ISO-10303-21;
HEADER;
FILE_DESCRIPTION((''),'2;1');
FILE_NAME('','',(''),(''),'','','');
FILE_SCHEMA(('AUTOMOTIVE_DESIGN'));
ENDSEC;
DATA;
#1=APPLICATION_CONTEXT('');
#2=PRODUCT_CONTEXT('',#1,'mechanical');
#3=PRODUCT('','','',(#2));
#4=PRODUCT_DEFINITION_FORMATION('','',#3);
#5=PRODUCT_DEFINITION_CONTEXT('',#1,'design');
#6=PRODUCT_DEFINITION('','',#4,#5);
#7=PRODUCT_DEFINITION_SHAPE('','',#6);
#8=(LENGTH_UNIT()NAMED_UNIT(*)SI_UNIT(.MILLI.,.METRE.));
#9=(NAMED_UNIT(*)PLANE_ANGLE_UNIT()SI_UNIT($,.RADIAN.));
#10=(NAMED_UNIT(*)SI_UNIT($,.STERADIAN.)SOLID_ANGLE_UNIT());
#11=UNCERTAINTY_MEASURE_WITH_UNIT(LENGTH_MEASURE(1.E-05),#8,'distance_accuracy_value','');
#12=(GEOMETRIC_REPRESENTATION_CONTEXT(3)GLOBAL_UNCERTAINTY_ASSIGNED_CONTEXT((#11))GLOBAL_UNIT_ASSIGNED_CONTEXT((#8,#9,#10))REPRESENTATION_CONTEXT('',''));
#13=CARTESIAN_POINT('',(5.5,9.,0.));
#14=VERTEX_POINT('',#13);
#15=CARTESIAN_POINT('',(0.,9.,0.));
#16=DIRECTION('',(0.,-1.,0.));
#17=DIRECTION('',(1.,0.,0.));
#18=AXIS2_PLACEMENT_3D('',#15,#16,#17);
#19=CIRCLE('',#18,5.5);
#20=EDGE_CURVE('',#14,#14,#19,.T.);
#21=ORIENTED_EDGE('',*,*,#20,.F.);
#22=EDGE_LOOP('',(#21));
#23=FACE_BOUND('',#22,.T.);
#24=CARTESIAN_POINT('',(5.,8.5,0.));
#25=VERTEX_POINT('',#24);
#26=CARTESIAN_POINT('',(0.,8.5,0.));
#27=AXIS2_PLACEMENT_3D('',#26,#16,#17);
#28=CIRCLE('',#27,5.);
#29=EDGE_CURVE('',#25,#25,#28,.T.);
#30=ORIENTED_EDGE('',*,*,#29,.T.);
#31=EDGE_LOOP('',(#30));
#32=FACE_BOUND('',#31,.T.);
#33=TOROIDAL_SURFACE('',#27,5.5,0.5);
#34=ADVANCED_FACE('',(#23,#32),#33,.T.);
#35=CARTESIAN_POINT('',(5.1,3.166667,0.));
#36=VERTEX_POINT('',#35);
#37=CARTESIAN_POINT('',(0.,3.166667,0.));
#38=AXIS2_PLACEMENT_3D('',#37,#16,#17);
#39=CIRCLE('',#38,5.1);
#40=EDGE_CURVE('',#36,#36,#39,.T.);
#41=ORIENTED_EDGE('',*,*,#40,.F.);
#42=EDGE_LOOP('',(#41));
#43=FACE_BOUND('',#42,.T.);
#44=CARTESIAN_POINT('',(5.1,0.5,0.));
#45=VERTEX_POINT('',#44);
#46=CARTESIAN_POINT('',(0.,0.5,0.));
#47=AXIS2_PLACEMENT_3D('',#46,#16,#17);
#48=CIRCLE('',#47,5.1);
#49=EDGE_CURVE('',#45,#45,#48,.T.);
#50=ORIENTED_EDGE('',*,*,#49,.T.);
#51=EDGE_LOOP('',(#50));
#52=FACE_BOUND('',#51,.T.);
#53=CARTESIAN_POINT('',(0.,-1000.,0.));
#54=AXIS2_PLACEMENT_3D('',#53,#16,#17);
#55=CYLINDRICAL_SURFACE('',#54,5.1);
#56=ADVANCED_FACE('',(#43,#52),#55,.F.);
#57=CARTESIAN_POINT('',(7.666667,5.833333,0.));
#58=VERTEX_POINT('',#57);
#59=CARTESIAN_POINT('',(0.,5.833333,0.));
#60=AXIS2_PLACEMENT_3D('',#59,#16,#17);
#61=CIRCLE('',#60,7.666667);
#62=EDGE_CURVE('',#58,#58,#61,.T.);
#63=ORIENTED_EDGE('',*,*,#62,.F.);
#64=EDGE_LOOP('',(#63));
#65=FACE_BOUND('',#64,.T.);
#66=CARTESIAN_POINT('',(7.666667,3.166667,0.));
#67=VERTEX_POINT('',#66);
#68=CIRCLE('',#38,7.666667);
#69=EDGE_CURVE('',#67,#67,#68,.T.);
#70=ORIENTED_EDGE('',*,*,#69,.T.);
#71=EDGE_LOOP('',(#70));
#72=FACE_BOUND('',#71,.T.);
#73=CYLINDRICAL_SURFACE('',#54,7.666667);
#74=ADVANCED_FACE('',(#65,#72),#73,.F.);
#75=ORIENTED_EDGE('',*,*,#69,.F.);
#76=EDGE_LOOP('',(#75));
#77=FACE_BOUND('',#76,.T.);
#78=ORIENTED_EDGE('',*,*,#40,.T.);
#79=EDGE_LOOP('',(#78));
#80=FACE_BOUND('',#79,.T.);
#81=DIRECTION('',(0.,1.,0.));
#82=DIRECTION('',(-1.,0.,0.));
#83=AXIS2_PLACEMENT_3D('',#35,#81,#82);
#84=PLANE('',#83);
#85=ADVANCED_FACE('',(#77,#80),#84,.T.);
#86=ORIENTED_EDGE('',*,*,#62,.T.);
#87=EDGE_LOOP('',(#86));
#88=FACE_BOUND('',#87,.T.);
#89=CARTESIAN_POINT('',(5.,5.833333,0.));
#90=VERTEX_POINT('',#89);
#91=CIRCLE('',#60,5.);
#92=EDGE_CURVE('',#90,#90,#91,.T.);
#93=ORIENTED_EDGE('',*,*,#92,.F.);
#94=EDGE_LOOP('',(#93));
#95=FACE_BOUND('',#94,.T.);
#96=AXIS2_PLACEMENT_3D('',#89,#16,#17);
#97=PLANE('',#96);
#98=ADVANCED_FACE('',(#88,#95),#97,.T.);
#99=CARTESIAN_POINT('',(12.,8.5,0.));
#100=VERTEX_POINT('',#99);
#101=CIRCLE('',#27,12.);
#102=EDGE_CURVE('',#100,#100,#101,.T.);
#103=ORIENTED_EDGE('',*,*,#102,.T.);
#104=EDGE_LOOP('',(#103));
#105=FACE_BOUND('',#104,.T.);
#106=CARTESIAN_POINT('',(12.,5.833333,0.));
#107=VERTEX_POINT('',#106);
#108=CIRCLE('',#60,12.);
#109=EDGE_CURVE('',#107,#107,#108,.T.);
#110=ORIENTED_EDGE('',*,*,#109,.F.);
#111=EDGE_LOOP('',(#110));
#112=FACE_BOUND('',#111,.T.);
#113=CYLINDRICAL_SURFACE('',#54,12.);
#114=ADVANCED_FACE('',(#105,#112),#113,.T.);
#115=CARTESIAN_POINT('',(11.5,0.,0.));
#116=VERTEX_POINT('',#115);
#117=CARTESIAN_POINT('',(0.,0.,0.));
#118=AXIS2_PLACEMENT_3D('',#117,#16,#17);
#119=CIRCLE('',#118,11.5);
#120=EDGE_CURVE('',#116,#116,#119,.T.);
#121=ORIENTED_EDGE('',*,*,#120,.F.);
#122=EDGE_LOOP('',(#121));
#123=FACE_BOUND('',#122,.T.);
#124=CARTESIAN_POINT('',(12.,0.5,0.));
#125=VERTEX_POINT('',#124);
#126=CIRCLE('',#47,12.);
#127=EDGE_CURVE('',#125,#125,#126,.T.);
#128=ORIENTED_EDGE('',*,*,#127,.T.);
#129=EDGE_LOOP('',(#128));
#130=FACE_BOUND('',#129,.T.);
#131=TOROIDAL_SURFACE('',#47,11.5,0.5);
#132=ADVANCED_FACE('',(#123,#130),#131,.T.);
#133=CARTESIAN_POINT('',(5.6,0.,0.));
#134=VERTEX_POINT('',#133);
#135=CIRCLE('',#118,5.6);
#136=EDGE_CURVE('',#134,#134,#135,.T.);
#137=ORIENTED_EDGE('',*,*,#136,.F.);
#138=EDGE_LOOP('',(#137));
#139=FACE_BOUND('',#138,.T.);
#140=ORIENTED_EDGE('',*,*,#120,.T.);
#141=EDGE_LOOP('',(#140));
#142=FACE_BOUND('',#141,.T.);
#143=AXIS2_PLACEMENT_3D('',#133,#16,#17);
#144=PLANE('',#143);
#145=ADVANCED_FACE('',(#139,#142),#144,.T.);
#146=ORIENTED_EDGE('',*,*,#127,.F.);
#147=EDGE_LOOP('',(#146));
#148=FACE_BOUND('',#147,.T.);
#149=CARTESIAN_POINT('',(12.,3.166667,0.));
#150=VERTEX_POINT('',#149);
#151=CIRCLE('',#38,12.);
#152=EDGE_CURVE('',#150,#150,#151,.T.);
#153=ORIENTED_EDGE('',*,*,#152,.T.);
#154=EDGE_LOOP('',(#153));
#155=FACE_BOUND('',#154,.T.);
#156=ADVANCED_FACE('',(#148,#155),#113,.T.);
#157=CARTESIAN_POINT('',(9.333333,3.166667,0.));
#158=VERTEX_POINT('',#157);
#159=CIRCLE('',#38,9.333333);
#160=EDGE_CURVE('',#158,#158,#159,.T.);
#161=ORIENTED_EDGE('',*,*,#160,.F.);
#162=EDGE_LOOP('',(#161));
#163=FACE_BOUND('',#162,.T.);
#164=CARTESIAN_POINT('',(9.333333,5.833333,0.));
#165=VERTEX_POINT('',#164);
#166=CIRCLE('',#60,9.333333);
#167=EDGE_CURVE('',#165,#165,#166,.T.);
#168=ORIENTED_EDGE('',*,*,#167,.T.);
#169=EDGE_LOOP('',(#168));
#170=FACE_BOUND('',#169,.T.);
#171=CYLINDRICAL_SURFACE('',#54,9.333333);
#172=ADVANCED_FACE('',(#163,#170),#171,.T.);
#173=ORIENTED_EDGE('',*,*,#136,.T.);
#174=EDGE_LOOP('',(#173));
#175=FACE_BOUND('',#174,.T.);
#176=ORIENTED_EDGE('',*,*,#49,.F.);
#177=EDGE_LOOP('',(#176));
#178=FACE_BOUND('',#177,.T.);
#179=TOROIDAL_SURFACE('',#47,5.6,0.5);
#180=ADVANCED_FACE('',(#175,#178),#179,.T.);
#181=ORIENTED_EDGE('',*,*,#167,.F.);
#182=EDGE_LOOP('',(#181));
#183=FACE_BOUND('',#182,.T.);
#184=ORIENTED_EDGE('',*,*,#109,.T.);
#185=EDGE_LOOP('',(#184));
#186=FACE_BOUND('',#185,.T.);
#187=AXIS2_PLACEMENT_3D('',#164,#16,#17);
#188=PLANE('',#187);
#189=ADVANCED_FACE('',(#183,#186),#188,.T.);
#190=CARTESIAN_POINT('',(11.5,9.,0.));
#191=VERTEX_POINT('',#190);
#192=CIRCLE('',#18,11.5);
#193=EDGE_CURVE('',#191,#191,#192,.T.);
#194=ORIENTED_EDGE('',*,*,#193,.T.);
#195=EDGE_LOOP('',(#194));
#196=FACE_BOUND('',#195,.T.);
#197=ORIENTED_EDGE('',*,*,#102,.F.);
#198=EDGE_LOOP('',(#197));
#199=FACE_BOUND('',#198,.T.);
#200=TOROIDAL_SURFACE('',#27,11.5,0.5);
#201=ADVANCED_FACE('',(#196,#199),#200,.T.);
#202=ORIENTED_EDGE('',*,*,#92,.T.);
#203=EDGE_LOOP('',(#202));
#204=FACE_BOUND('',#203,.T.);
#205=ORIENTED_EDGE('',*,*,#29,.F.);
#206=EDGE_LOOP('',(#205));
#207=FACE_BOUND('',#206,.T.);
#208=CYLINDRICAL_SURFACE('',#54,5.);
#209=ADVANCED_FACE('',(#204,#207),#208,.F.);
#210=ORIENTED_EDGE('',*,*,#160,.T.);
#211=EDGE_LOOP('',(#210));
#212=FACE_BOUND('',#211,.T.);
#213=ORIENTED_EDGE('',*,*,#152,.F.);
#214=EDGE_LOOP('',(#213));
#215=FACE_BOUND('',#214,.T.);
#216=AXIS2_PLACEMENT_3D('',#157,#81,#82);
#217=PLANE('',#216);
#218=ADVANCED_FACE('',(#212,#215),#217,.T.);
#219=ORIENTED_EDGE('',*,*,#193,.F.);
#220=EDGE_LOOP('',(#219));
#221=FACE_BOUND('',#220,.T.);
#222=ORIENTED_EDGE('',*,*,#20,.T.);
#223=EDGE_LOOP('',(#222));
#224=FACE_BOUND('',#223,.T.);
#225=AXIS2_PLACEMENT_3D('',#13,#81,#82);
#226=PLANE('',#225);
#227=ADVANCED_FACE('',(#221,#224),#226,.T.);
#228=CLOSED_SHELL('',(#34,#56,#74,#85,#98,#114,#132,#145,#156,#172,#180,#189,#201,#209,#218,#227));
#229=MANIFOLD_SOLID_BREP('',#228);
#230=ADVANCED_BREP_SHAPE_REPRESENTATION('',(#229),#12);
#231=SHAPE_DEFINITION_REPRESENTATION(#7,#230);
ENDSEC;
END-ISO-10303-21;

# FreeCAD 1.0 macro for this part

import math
import FreeCAD as App
import Part
import Sketcher
from FreeCAD import Vector
Q = App.Units.Quantity

doc = App.newDocument("Part")
body = doc.addObject("PartDesign::Body", "Body")

sketch1 = body.newObject("Sketcher::SketchObject", "Sketch")
sketch1.AttachmentSupport = (doc.getObject("XY_Plane"), [""])
sketch1.MapMode = "FlatFace"
sketch1.addGeometry(Part.LineSegment(Vector(7.666667, 3.166667, 0), Vector(5.1, 3.166667, 0)), False)
sketch1.addGeometry(Part.LineSegment(Vector(5.1, 3.166667, 0), Vector(5.1, 0.5, 0)), False)
sketch1.addGeometry(Part.ArcOfCircle(Part.Circle(Vector(5.6, 0.5, 0), Vector(0, 0, 1), 0.5), math.radians(180), math.radians(270)), False)
sketch1.addGeometry(Part.LineSegment(Vector(5.6, 0, 0), Vector(11.5, 0, 0)), False)
sketch1.addGeometry(Part.ArcOfCircle(Part.Circle(Vector(11.5, 0.5, 0), Vector(0, 0, 1), 0.5), math.radians(-90), math.radians(0)), False)
sketch1.addGeometry(Part.LineSegment(Vector(12, 0.5, 0), Vector(12, 3.166667, 0)), False)
sketch1.addGeometry(Part.LineSegment(Vector(12, 3.166667, 0), Vector(9.333333, 3.166667, 0)), False)
sketch1.addGeometry(Part.LineSegment(Vector(9.333333, 3.166667, 0), Vector(9.333333, 5.833333, 0)), False)
sketch1.addGeometry(Part.LineSegment(Vector(9.333333, 5.833333, 0), Vector(12, 5.833333, 0)), False)
sketch1.addGeometry(Part.LineSegment(Vector(12, 5.833333, 0), Vector(12, 8.5, 0)), False)
sketch1.addGeometry(Part.ArcOfCircle(Part.Circle(Vector(11.5, 8.5, 0), Vector(0, 0, 1), 0.5), math.radians(0), math.radians(90)), False)
sketch1.addGeometry(Part.LineSegment(Vector(11.5, 9, 0), Vector(5.5, 9, 0)), False)
sketch1.addGeometry(Part.ArcOfCircle(Part.Circle(Vector(5.5, 8.5, 0), Vector(0, 0, 1), 0.5), math.radians(90), math.radians(180)), False)
sketch1.addGeometry(Part.LineSegment(Vector(5, 8.5, 0), Vector(5, 5.833333, 0)), False)
sketch1.addGeometry(Part.LineSegment(Vector(5, 5.833333, 0), Vector(7.666667, 5.833333, 0)), False)
sketch1.addGeometry(Part.LineSegment(Vector(7.666667, 5.833333, 0), Vector(7.666667, 3.166667, 0)), False)
sketch1.addConstraint(Sketcher.Constraint("Coincident", 0, 2, 1, 1))
sketch1.addConstraint(Sketcher.Constraint("Tangent", 1, 2, 2, 1))
sketch1.addConstraint(Sketcher.Constraint("Tangent", 2, 2, 3, 1))
sketch1.addConstraint(Sketcher.Constraint("Tangent", 3, 2, 4, 1))
sketch1.addConstraint(Sketcher.Constraint("Tangent", 4, 2, 5, 1))
sketch1.addConstraint(Sketcher.Constraint("Coincident", 5, 2, 6, 1))
sketch1.addConstraint(Sketcher.Constraint("Coincident", 6, 2, 7, 1))
sketch1.addConstraint(Sketcher.Constraint("Coincident", 7, 2, 8, 1))
sketch1.addConstraint(Sketcher.Constraint("Coincident", 8, 2, 9, 1))
sketch1.addConstraint(Sketcher.Constraint("Tangent", 9, 2, 10, 1))
sketch1.addConstraint(Sketcher.Constraint("Tangent", 10, 2, 11, 1))
sketch1.addConstraint(Sketcher.Constraint("Tangent", 11, 2, 12, 1))
sketch1.addConstraint(Sketcher.Constraint("Tangent", 12, 2, 13, 1))
sketch1.addConstraint(Sketcher.Constraint("Coincident", 13, 2, 14, 1))
sketch1.addConstraint(Sketcher.Constraint("Coincident", 14, 2, 15, 1))
sketch1.addConstraint(Sketcher.Constraint("Coincident", 15, 2, 0, 1))
sketch1.addConstraint(Sketcher.Constraint("Horizontal", 0))
sketch1.addConstraint(Sketcher.Constraint("Vertical", 1))
sketch1.addConstraint(Sketcher.Constraint("Horizontal", 3))
sketch1.addConstraint(Sketcher.Constraint("Vertical", 5))
sketch1.addConstraint(Sketcher.Constraint("Horizontal", 6))
sketch1.addConstraint(Sketcher.Constraint("Vertical", 7))
sketch1.addConstraint(Sketcher.Constraint("Horizontal", 8))
sketch1.addConstraint(Sketcher.Constraint("Vertical", 9))
sketch1.addConstraint(Sketcher.Constraint("Horizontal", 11))
sketch1.addConstraint(Sketcher.Constraint("Vertical", 13))
sketch1.addConstraint(Sketcher.Constraint("Horizontal", 14))
sketch1.addConstraint(Sketcher.Constraint("Vertical", 15))
sketch1.addConstraint(Sketcher.Constraint("Equal", 2, 4))
sketch1.addConstraint(Sketcher.Constraint("Equal", 4, 10))
sketch1.addConstraint(Sketcher.Constraint("Equal", 10, 12))
sketch1.addConstraint(Sketcher.Constraint("PointOnObject", 2, 2, -1))
sketch1.addConstraint(Sketcher.Constraint("Horizontal", 0, 2, 5, 2))
sketch1.addConstraint(Sketcher.Constraint("Horizontal", 8, 2, 13, 2))
sketch1.addConstraint(Sketcher.Constraint("Vertical", 4, 3, 10, 3))
sketch1.addConstraint(Sketcher.Constraint("Equal", 8, 14))
sketch1.addConstraint(Sketcher.Constraint("Equal", 14, 1))
sketch1.addConstraint(Sketcher.Constraint("Equal", 5, 7))
sketch1.addConstraint(Sketcher.Constraint("Equal", 7, 9))
sketch1.addConstraint(Sketcher.Constraint("Radius", 2, Q("0.5 mm")))
sketch1.addConstraint(Sketcher.Constraint("DistanceX", 11, 2, 11, 1, Q("6 mm")))
sketch1.addConstraint(Sketcher.Constraint("DistanceX", 3, 1, 3, 2, Q("5.9 mm")))
sketch1.addConstraint(Sketcher.Constraint("DistanceX", -1, 1, 4, 2, Q("12 mm")))
sketch1.addConstraint(Sketcher.Constraint("DistanceY", -1, 1, 10, 2, Q("9 mm")))
revolution = body.newObject("PartDesign::Revolution", "Revolution")
revolution.Profile = sketch1
revolution.ReferenceAxis = (sketch1, ["V_Axis"])
revolution.Angle = 360

doc.recompute()
